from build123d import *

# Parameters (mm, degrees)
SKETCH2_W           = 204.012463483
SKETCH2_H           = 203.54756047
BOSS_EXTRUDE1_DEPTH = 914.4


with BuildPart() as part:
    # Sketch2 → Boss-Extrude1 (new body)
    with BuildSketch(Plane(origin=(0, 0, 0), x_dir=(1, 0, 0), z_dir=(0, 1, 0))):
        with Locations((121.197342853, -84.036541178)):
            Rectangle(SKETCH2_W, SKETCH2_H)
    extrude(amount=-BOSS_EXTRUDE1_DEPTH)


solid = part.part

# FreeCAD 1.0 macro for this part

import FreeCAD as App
import Part
import Sketcher

V = App.Vector


def add_polygon(sketch, points):
    """Adds a closed chain of lines whose ends are joined by coincident constraints."""
    first, n = sketch.GeometryCount, len(points)
    for a, b in zip(points, points[1:] + points[:1]):
        sketch.addGeometry(Part.LineSegment(App.Vector(*a, 0), App.Vector(*b, 0)), False)
    for i in range(n):
        sketch.addConstraint(Sketcher.Constraint("Coincident", first + i, 2, first + (i + 1) % n, 1))

doc = App.newDocument("Part")
params = doc.addObject("Spreadsheet::Sheet", "Params")
for row, (alias, value) in enumerate([
    ("pad1_length", "36 in"),
], start=1):
    params.set(f"A{row}", alias)
    params.set(f"B{row}", "=" + value)
    params.setAlias(f"B{row}", alias)

body = doc.addObject("PartDesign::Body", "Body")

sketch1 = body.newObject("Sketcher::SketchObject", "Sketch")
sketch1.AttachmentSupport = (doc.getObject("XZ_Plane"), [""])
sketch1.MapMode = "FlatFace"
add_polygon(sketch1, [(19, -18), (19, 186), (223, 186), (223, -18)])
sketch1.addConstraint([
    Sketcher.Constraint("Vertical", 0),
    Sketcher.Constraint("Horizontal", 1),
    Sketcher.Constraint("Vertical", 2),
    Sketcher.Constraint("Horizontal", 3),
    Sketcher.Constraint("DistanceY", 0, 1, 0, 2, 203.54756),
    Sketcher.Constraint("DistanceX", 1, 1, 1, 2, 204.012463),
    Sketcher.Constraint("DistanceX", -1, 1, 0, 2, 19.191111),
    Sketcher.Constraint("DistanceY", -1, 1, 0, 2, 185.810321),
])
pad1 = body.newObject("PartDesign::Pad", "Pad")
pad1.Profile = sketch1
pad1.setExpression("Length", "Params.pad1_length")

doc.recompute()
